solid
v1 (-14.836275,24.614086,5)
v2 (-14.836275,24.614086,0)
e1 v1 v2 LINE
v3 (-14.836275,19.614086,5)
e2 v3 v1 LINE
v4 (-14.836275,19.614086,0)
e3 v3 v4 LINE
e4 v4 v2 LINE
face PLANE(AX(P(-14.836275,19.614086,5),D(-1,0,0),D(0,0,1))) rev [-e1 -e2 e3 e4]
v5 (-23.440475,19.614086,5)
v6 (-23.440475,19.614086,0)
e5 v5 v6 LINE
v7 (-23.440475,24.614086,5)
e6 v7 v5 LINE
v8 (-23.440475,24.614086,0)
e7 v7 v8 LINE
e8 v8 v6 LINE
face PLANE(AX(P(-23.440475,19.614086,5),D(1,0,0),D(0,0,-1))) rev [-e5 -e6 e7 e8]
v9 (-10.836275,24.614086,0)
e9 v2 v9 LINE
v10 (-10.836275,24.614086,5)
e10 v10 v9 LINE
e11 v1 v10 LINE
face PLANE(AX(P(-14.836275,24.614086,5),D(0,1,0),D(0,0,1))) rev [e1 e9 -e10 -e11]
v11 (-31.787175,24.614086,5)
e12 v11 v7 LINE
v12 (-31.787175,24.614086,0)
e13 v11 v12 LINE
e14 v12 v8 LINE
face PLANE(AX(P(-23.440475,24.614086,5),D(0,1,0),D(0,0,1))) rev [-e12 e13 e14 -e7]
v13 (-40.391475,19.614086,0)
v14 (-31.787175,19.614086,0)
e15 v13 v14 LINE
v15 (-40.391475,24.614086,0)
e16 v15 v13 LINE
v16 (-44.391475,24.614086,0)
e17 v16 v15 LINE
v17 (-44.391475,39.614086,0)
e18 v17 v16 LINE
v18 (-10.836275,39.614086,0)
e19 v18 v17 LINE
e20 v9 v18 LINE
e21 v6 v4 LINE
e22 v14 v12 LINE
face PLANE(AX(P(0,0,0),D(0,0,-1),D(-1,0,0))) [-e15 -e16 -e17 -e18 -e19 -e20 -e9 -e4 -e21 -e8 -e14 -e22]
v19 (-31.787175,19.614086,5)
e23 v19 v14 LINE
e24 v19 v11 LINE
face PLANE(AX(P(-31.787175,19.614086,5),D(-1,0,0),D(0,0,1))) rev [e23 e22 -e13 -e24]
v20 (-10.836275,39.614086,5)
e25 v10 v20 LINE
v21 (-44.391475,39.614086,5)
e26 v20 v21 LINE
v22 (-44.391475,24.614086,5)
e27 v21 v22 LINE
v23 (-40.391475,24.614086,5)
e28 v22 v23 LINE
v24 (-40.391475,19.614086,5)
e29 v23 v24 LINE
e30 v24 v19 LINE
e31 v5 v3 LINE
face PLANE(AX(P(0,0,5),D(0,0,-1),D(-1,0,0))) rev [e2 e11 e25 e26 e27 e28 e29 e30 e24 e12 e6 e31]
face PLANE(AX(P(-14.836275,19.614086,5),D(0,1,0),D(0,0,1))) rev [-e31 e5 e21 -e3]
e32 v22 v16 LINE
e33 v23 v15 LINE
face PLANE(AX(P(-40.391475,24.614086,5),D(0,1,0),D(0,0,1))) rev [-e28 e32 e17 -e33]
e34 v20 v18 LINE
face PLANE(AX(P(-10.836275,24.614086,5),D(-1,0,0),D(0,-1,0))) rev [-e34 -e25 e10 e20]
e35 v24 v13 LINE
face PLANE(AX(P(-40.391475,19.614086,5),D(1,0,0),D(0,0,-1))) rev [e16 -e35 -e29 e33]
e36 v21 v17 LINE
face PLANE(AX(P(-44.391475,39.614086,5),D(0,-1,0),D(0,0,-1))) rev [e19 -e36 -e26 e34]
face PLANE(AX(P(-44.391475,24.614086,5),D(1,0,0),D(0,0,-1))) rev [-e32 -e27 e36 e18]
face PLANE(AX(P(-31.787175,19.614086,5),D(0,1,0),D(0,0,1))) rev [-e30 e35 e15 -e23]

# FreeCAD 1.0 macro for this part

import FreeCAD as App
import Part
import Sketcher
from FreeCAD import Vector
Q = App.Units.Quantity


def add_polygon(sketch, points):
    """Adds a closed chain of lines whose ends are joined by coincident constraints."""
    first, n = sketch.GeometryCount, len(points)
    for a, b in zip(points, points[1:] + points[:1]):
        sketch.addGeometry(Part.LineSegment(App.Vector(*a, 0), App.Vector(*b, 0)), False)
    for i in range(n):
        sketch.addConstraint(Sketcher.Constraint("Coincident", first + i, 2, first + (i + 1) % n, 1))

doc = App.newDocument("Part")
body = doc.addObject("PartDesign::Body", "Body")

sketch1 = body.newObject("Sketcher::SketchObject", "Sketch")
sketch1.AttachmentSupport = (doc.getObject("XY_Plane"), [""])
sketch1.MapMode = "FlatFace"
add_polygon(sketch1, [(-10.836275, 39.614086), (-44.391475, 39.614086), (-44.391475, 24.614086), (-40.391475, 24.614086), (-40.391475, 19.614086), (-31.787175, 19.614086), (-31.787175, 24.614086), (-23.440475, 24.614086), (-23.440475, 19.614086), (-14.836275, 19.614086), (-14.836275, 24.614086), (-10.836275, 24.614086)])
sketch1.addConstraint(Sketcher.Constraint("Horizontal", 0))
sketch1.addConstraint(Sketcher.Constraint("Vertical", 1))
sketch1.addConstraint(Sketcher.Constraint("Horizontal", 2))
sketch1.addConstraint(Sketcher.Constraint("Vertical", 3))
sketch1.addConstraint(Sketcher.Constraint("Horizontal", 4))
sketch1.addConstraint(Sketcher.Constraint("Vertical", 5))
sketch1.addConstraint(Sketcher.Constraint("Horizontal", 6))
sketch1.addConstraint(Sketcher.Constraint("Vertical", 7))
sketch1.addConstraint(Sketcher.Constraint("Horizontal", 8))
sketch1.addConstraint(Sketcher.Constraint("Vertical", 9))
sketch1.addConstraint(Sketcher.Constraint("Horizontal", 10))
sketch1.addConstraint(Sketcher.Constraint("Vertical", 11))
sketch1.addConstraint(Sketcher.Constraint("Horizontal", 2, 2, 5, 2))
sketch1.addConstraint(Sketcher.Constraint("Horizontal", 4, 2, 7, 2))
sketch1.addConstraint(Sketcher.Constraint("Horizontal", 6, 2, 9, 2))
sketch1.addConstraint(Sketcher.Constraint("Equal", 2, 10))
sketch1.addConstraint(Sketcher.Constraint("DistanceX", 2, 1, 2, 2, Q("4 mm")))
sketch1.addConstraint(Sketcher.Constraint("DistanceY", 1, 2, 1, 1, Q("15 mm")))
sketch1.addConstraint(Sketcher.Constraint("DistanceY", 3, 2, 3, 1, Q("5 mm")))
sketch1.addConstraint(Sketcher.Constraint("DistanceX", 0, 2, 0, 1, Q("33.5552 mm")))
sketch1.addConstraint(Sketcher.Constraint("DistanceX", 4, 1, 4, 2, Q("8.6043 mm")))
sketch1.addConstraint(Sketcher.Constraint("DistanceX", 6, 1, 6, 2, Q("8.3467 mm")))
sketch1.addConstraint(Sketcher.Constraint("DistanceX", 0, 2, -1, 1, Q("44.391475 mm")))
sketch1.addConstraint(Sketcher.Constraint("DistanceY", -1, 1, 0, 2, Q("39.614086 mm")))
pad1 = body.newObject("PartDesign::Pad", "Pad")
pad1.Profile = sketch1
pad1.Length = 5

doc.recompute()
